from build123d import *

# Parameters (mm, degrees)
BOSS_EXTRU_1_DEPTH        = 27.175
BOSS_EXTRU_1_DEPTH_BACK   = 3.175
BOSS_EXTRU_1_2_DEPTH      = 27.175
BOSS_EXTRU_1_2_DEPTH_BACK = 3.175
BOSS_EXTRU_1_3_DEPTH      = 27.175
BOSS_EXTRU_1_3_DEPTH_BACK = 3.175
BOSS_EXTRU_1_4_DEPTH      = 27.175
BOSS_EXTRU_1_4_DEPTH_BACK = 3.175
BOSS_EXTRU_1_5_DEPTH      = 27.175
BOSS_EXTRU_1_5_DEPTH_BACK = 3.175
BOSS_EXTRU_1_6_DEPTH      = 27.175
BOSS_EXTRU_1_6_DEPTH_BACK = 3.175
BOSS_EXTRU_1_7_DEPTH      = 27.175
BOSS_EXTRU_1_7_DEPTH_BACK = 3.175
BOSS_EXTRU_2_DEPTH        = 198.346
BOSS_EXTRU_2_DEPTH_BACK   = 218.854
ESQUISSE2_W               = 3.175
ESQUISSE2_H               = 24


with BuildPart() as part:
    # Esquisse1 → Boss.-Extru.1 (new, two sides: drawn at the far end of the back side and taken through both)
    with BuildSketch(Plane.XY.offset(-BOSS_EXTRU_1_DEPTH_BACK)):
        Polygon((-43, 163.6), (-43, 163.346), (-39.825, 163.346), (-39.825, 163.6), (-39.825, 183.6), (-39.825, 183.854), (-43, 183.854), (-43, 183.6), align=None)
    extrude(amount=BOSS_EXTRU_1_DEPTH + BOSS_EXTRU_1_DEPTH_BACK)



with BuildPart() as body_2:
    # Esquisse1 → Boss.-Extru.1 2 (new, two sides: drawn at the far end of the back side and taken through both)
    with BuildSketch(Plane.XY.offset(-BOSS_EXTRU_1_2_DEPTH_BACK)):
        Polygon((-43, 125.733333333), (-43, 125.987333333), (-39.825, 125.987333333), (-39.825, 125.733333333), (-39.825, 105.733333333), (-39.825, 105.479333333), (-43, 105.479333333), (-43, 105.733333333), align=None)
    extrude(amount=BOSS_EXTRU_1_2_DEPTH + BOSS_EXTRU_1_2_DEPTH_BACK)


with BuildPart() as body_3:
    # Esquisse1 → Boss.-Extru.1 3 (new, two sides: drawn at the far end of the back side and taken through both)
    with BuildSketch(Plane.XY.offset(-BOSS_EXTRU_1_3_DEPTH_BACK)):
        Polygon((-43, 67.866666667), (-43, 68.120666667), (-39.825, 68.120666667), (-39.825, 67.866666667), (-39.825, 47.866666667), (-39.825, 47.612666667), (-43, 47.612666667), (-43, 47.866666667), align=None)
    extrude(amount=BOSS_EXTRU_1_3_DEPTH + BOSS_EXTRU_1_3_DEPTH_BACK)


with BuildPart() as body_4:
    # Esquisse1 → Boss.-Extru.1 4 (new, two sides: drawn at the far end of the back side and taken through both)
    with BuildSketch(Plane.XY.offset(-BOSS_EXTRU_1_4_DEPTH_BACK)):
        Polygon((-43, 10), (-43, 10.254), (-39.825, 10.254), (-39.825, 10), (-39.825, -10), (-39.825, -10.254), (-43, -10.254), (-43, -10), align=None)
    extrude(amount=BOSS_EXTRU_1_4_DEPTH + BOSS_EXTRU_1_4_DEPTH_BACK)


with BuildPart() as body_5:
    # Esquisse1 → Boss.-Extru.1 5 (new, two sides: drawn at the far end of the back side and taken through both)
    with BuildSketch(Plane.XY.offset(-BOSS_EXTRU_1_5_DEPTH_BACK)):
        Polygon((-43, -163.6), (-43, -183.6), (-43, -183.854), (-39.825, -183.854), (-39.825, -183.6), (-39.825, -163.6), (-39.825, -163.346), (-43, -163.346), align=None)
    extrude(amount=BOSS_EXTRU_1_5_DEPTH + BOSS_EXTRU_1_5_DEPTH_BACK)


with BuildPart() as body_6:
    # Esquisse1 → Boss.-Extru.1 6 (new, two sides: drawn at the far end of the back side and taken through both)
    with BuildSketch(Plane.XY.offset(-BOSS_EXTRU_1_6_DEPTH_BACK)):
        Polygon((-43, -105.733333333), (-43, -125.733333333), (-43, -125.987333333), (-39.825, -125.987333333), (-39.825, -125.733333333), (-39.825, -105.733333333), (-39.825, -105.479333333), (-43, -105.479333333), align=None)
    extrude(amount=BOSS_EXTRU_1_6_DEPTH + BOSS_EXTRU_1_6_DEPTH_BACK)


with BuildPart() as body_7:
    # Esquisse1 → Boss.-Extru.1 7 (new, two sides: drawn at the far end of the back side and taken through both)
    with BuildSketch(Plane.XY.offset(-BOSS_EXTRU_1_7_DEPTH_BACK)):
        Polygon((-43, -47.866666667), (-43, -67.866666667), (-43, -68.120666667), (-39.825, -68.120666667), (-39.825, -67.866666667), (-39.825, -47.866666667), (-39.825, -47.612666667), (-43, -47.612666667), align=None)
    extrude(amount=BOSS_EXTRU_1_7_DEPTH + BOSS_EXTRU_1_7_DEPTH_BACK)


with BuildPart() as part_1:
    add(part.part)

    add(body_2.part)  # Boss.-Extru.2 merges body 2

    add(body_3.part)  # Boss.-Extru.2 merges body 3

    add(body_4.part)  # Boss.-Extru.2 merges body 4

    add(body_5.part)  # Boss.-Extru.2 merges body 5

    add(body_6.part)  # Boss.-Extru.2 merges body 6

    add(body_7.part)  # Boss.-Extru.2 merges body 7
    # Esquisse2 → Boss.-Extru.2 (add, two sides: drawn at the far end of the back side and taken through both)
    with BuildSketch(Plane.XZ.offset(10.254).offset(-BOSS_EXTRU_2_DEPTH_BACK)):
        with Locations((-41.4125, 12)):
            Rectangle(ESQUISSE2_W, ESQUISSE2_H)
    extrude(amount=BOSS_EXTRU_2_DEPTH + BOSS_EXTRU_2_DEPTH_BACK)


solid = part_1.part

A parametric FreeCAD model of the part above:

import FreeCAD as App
import Part
import Sketcher
Q = App.Units.Quantity

doc = App.newDocument("Part")
params = doc.addObject("Spreadsheet::Sheet", "Params")
for row, (alias, value) in enumerate([
    ("pad1_length", "27.175 mm"),
    ("pad1_length2", "3.175 mm"),
    ("pad2_length", "27.175 mm"),
    ("pad2_length2", "3.175 mm"),
    ("pad3_length", "27.175 mm"),
    ("pad3_length2", "3.175 mm"),
    ("pad4_length", "27.175 mm"),
    ("pad4_length2", "3.175 mm"),
    ("pad5_length", "27.175 mm"),
    ("pad5_length2", "3.175 mm"),
    ("pad6_length", "27.175 mm"),
    ("pad6_length2", "3.175 mm"),
    ("pad7_length", "27.175 mm"),
    ("pad7_length2", "3.175 mm"),
    ("sketch8_height", "24 mm"),
    ("pad8_length", "198.346 mm"),
    ("pad8_length2", "218.854 mm"),
], start=1):
    params.set(f"A{row}", alias)
    params.set(f"B{row}", "=" + value)
    params.setAlias(f"B{row}", alias)

body = doc.addObject("PartDesign::Body", "Body")

sketch1 = body.newObject("Sketcher::SketchObject", "Sketch")
sketch1.AttachmentSupport = (doc.getObject("XY_Plane"), [""])
sketch1.MapMode = "FlatFace"
sketch1.addGeometry(Part.LineSegment(App.Vector(-43, 163.3, 0), App.Vector(-39.8, 163.3, 0)), False)
sketch1.addGeometry(Part.LineSegment(App.Vector(-39.8, 163.3, 0), App.Vector(-39.8, 183.9, 0)), False)
sketch1.addGeometry(Part.LineSegment(App.Vector(-39.8, 183.9, 0), App.Vector(-43, 183.9, 0)), False)
sketch1.addGeometry(Part.LineSegment(App.Vector(-43, 183.9, 0), App.Vector(-43, 163.3, 0)), False)
sketch1.addConstraint(Sketcher.Constraint("Coincident", 0, 2, 1, 1))
sketch1.addConstraint(Sketcher.Constraint("Coincident", 1, 2, 2, 1))
sketch1.addConstraint(Sketcher.Constraint("Coincident", 2, 2, 3, 1))
sketch1.addConstraint(Sketcher.Constraint("Coincident", 3, 2, 0, 1))
sketch1.addConstraint(Sketcher.Constraint("Horizontal", 0))
sketch1.addConstraint(Sketcher.Constraint("Vertical", 1))
sketch1.addConstraint(Sketcher.Constraint("Horizontal", 2))
sketch1.addConstraint(Sketcher.Constraint("Vertical", 3))
sketch1.addConstraint(Sketcher.Constraint("DistanceX", 2, 2, -1, 1, Q("43 mm")))
sketch1.addConstraint(Sketcher.Constraint("DistanceX", 0, 1, 0, 2, Q("3.175 mm")))
sketch1.addConstraint(Sketcher.Constraint("DistanceY", 1, 1, 1, 2, Q("20.508 mm")))
sketch1.addConstraint(Sketcher.Constraint("DistanceY", -1, 1, 0, 2, Q("163.346 mm")))
pad1 = body.newObject("PartDesign::Pad", "Pad")
pad1.Profile = sketch1
pad1.Type = "TwoLengths"
pad1.setExpression("Length", "Params.pad1_length")
pad1.setExpression("Length2", "Params.pad1_length2")
body2 = doc.addObject("PartDesign::Body", "Body001")

sketch2 = body2.newObject("Sketcher::SketchObject", "Sketch001")
sketch2.AttachmentSupport = (doc.getObject("XY_Plane001"), [""])
sketch2.MapMode = "FlatFace"
sketch2.addGeometry(Part.LineSegment(App.Vector(-43, 126, 0), App.Vector(-43, 105.5, 0)), False)
sketch2.addGeometry(Part.LineSegment(App.Vector(-43, 105.5, 0), App.Vector(-39.8, 105.5, 0)), False)
sketch2.addGeometry(Part.LineSegment(App.Vector(-39.8, 105.5, 0), App.Vector(-39.8, 126, 0)), False)
sketch2.addGeometry(Part.LineSegment(App.Vector(-39.8, 126, 0), App.Vector(-43, 126, 0)), False)
sketch2.addConstraint(Sketcher.Constraint("Coincident", 0, 2, 1, 1))
sketch2.addConstraint(Sketcher.Constraint("Coincident", 1, 2, 2, 1))
sketch2.addConstraint(Sketcher.Constraint("Coincident", 2, 2, 3, 1))
sketch2.addConstraint(Sketcher.Constraint("Coincident", 3, 2, 0, 1))
sketch2.addConstraint(Sketcher.Constraint("Vertical", 0))
sketch2.addConstraint(Sketcher.Constraint("Horizontal", 1))
sketch2.addConstraint(Sketcher.Constraint("Vertical", 2))
sketch2.addConstraint(Sketcher.Constraint("Horizontal", 3))
sketch2.addConstraint(Sketcher.Constraint("DistanceX", 0, 2, -1, 1, Q("43 mm")))
sketch2.addConstraint(Sketcher.Constraint("DistanceX", 1, 1, 1, 2, Q("3.175 mm")))
sketch2.addConstraint(Sketcher.Constraint("DistanceY", 0, 2, 0, 1, Q("20.508 mm")))
sketch2.addConstraint(Sketcher.Constraint("DistanceY", -1, 1, 0, 2, Q("105.479333 mm")))
pad2 = body2.newObject("PartDesign::Pad", "Pad001")
pad2.Profile = sketch2
pad2.Type = "TwoLengths"
pad2.setExpression("Length", "Params.pad2_length")
pad2.setExpression("Length2", "Params.pad2_length2")
body3 = doc.addObject("PartDesign::Body", "Body002")

sketch3 = body3.newObject("Sketcher::SketchObject", "Sketch002")
sketch3.AttachmentSupport = (doc.getObject("XY_Plane002"), [""])
sketch3.MapMode = "FlatFace"
sketch3.addGeometry(Part.LineSegment(App.Vector(-43, 68.1, 0), App.Vector(-43, 47.6, 0)), False)
sketch3.addGeometry(Part.LineSegment(App.Vector(-43, 47.6, 0), App.Vector(-39.8, 47.6, 0)), False)
sketch3.addGeometry(Part.LineSegment(App.Vector(-39.8, 47.6, 0), App.Vector(-39.8, 68.1, 0)), False)
sketch3.addGeometry(Part.LineSegment(App.Vector(-39.8, 68.1, 0), App.Vector(-43, 68.1, 0)), False)
sketch3.addConstraint(Sketcher.Constraint("Coincident", 0, 2, 1, 1))
sketch3.addConstraint(Sketcher.Constraint("Coincident", 1, 2, 2, 1))
sketch3.addConstraint(Sketcher.Constraint("Coincident", 2, 2, 3, 1))
sketch3.addConstraint(Sketcher.Constraint("Coincident", 3, 2, 0, 1))
sketch3.addConstraint(Sketcher.Constraint("Vertical", 0))
sketch3.addConstraint(Sketcher.Constraint("Horizontal", 1))
sketch3.addConstraint(Sketcher.Constraint("Vertical", 2))
sketch3.addConstraint(Sketcher.Constraint("Horizontal", 3))
sketch3.addConstraint(Sketcher.Constraint("DistanceX", 0, 2, -1, 1, Q("43 mm")))
sketch3.addConstraint(Sketcher.Constraint("DistanceX", 1, 1, 1, 2, Q("3.175 mm")))
sketch3.addConstraint(Sketcher.Constraint("DistanceY", 0, 2, 0, 1, Q("20.508 mm")))
sketch3.addConstraint(Sketcher.Constraint("DistanceY", -1, 1, 0, 2, Q("47.612667 mm")))
pad3 = body3.newObject("PartDesign::Pad", "Pad002")
pad3.Profile = sketch3
pad3.Type = "TwoLengths"
pad3.setExpression("Length", "Params.pad3_length")
pad3.setExpression("Length2", "Params.pad3_length2")
body4 = doc.addObject("PartDesign::Body", "Body003")

sketch4 = body4.newObject("Sketcher::SketchObject", "Sketch003")
sketch4.AttachmentSupport = (doc.getObject("XY_Plane003"), [""])
sketch4.MapMode = "FlatFace"
sketch4.addGeometry(Part.LineSegment(App.Vector(-43, 10.3, 0), App.Vector(-43, -10.3, 0)), False)
sketch4.addGeometry(Part.LineSegment(App.Vector(-43, -10.3, 0), App.Vector(-39.8, -10.3, 0)), False)
sketch4.addGeometry(Part.LineSegment(App.Vector(-39.8, -10.3, 0), App.Vector(-39.8, 10.3, 0)), False)
sketch4.addGeometry(Part.LineSegment(App.Vector(-39.8, 10.3, 0), App.Vector(-43, 10.3, 0)), False)
sketch4.addConstraint(Sketcher.Constraint("Coincident", 0, 2, 1, 1))
sketch4.addConstraint(Sketcher.Constraint("Coincident", 1, 2, 2, 1))
sketch4.addConstraint(Sketcher.Constraint("Coincident", 2, 2, 3, 1))
sketch4.addConstraint(Sketcher.Constraint("Coincident", 3, 2, 0, 1))
sketch4.addConstraint(Sketcher.Constraint("Vertical", 0))
sketch4.addConstraint(Sketcher.Constraint("Horizontal", 1))
sketch4.addConstraint(Sketcher.Constraint("Vertical", 2))
sketch4.addConstraint(Sketcher.Constraint("Horizontal", 3))
sketch4.addConstraint(Sketcher.Constraint("DistanceX", 0, 2, -1, 1, Q("43 mm")))
sketch4.addConstraint(Sketcher.Constraint("DistanceX", 1, 1, 1, 2, Q("3.175 mm")))
sketch4.addConstraint(Sketcher.Constraint("DistanceY", 0, 2, 0, 1, Q("20.508 mm")))
sketch4.addConstraint(Sketcher.Constraint("DistanceY", 0, 2, -1, 1, Q("10.254 mm")))
pad4 = body4.newObject("PartDesign::Pad", "Pad003")
pad4.Profile = sketch4
pad4.Type = "TwoLengths"
pad4.setExpression("Length", "Params.pad4_length")
pad4.setExpression("Length2", "Params.pad4_length2")
body5 = doc.addObject("PartDesign::Body", "Body004")

sketch5 = body5.newObject("Sketcher::SketchObject", "Sketch004")
sketch5.AttachmentSupport = (doc.getObject("XY_Plane004"), [""])
sketch5.MapMode = "FlatFace"
sketch5.addGeometry(Part.LineSegment(App.Vector(-43, -183.9, 0), App.Vector(-39.8, -183.9, 0)), False)
sketch5.addGeometry(Part.LineSegment(App.Vector(-39.8, -183.9, 0), App.Vector(-39.8, -163.3, 0)), False)
sketch5.addGeometry(Part.LineSegment(App.Vector(-39.8, -163.3, 0), App.Vector(-43, -163.3, 0)), False)
sketch5.addGeometry(Part.LineSegment(App.Vector(-43, -163.3, 0), App.Vector(-43, -183.9, 0)), False)
sketch5.addConstraint(Sketcher.Constraint("Coincident", 0, 2, 1, 1))
sketch5.addConstraint(Sketcher.Constraint("Coincident", 1, 2, 2, 1))
sketch5.addConstraint(Sketcher.Constraint("Coincident", 2, 2, 3, 1))
sketch5.addConstraint(Sketcher.Constraint("Coincident", 3, 2, 0, 1))
sketch5.addConstraint(Sketcher.Constraint("Horizontal", 0))
sketch5.addConstraint(Sketcher.Constraint("Vertical", 1))
sketch5.addConstraint(Sketcher.Constraint("Horizontal", 2))
sketch5.addConstraint(Sketcher.Constraint("Vertical", 3))
sketch5.addConstraint(Sketcher.Constraint("DistanceX", 2, 2, -1, 1, Q("43 mm")))
sketch5.addConstraint(Sketcher.Constraint("DistanceX", 0, 1, 0, 2, Q("3.175 mm")))
sketch5.addConstraint(Sketcher.Constraint("DistanceY", 1, 1, 1, 2, Q("20.508 mm")))
sketch5.addConstraint(Sketcher.Constraint("DistanceY", 0, 2, -1, 1, Q("183.854 mm")))
pad5 = body5.newObject("PartDesign::Pad", "Pad004")
pad5.Profile = sketch5
pad5.Type = "TwoLengths"
pad5.setExpression("Length", "Params.pad5_length")
pad5.setExpression("Length2", "Params.pad5_length2")
body6 = doc.addObject("PartDesign::Body", "Body005")

sketch6 = body6.newObject("Sketcher::SketchObject", "Sketch005")
sketch6.AttachmentSupport = (doc.getObject("XY_Plane005"), [""])
sketch6.MapMode = "FlatFace"
sketch6.addGeometry(Part.LineSegment(App.Vector(-43, -126, 0), App.Vector(-39.8, -126, 0)), False)
sketch6.addGeometry(Part.LineSegment(App.Vector(-39.8, -126, 0), App.Vector(-39.8, -105.5, 0)), False)
sketch6.addGeometry(Part.LineSegment(App.Vector(-39.8, -105.5, 0), App.Vector(-43, -105.5, 0)), False)
sketch6.addGeometry(Part.LineSegment(App.Vector(-43, -105.5, 0), App.Vector(-43, -126, 0)), False)
sketch6.addConstraint(Sketcher.Constraint("Coincident", 0, 2, 1, 1))
sketch6.addConstraint(Sketcher.Constraint("Coincident", 1, 2, 2, 1))
sketch6.addConstraint(Sketcher.Constraint("Coincident", 2, 2, 3, 1))
sketch6.addConstraint(Sketcher.Constraint("Coincident", 3, 2, 0, 1))
sketch6.addConstraint(Sketcher.Constraint("Horizontal", 0))
sketch6.addConstraint(Sketcher.Constraint("Vertical", 1))
sketch6.addConstraint(Sketcher.Constraint("Horizontal", 2))
sketch6.addConstraint(Sketcher.Constraint("Vertical", 3))
sketch6.addConstraint(Sketcher.Constraint("DistanceX", 2, 2, -1, 1, Q("43 mm")))
sketch6.addConstraint(Sketcher.Constraint("DistanceX", 0, 1, 0, 2, Q("3.175 mm")))
sketch6.addConstraint(Sketcher.Constraint("DistanceY", 1, 1, 1, 2, Q("20.508 mm")))
sketch6.addConstraint(Sketcher.Constraint("DistanceY", 0, 2, -1, 1, Q("125.987333 mm")))
pad6 = body6.newObject("PartDesign::Pad", "Pad005")
pad6.Profile = sketch6
pad6.Type = "TwoLengths"
pad6.setExpression("Length", "Params.pad6_length")
pad6.setExpression("Length2", "Params.pad6_length2")
body7 = doc.addObject("PartDesign::Body", "Body006")

sketch7 = body7.newObject("Sketcher::SketchObject", "Sketch006")
sketch7.AttachmentSupport = (doc.getObject("XY_Plane006"), [""])
sketch7.MapMode = "FlatFace"
sketch7.addGeometry(Part.LineSegment(App.Vector(-43, -68.1, 0), App.Vector(-39.8, -68.1, 0)), False)
sketch7.addGeometry(Part.LineSegment(App.Vector(-39.8, -68.1, 0), App.Vector(-39.8, -47.6, 0)), False)
sketch7.addGeometry(Part.LineSegment(App.Vector(-39.8, -47.6, 0), App.Vector(-43, -47.6, 0)), False)
sketch7.addGeometry(Part.LineSegment(App.Vector(-43, -47.6, 0), App.Vector(-43, -68.1, 0)), False)
sketch7.addConstraint(Sketcher.Constraint("Coincident", 0, 2, 1, 1))
sketch7.addConstraint(Sketcher.Constraint("Coincident", 1, 2, 2, 1))
sketch7.addConstraint(Sketcher.Constraint("Coincident", 2, 2, 3, 1))
sketch7.addConstraint(Sketcher.Constraint("Coincident", 3, 2, 0, 1))
sketch7.addConstraint(Sketcher.Constraint("Horizontal", 0))
sketch7.addConstraint(Sketcher.Constraint("Vertical", 1))
sketch7.addConstraint(Sketcher.Constraint("Horizontal", 2))
sketch7.addConstraint(Sketcher.Constraint("Vertical", 3))
sketch7.addConstraint(Sketcher.Constraint("DistanceX", 2, 2, -1, 1, Q("43 mm")))
sketch7.addConstraint(Sketcher.Constraint("DistanceX", 0, 1, 0, 2, Q("3.175 mm")))
sketch7.addConstraint(Sketcher.Constraint("DistanceY", 1, 1, 1, 2, Q("20.508 mm")))
sketch7.addConstraint(Sketcher.Constraint("DistanceY", 0, 2, -1, 1, Q("68.120667 mm")))
pad7 = body7.newObject("PartDesign::Pad", "Pad006")
pad7.Profile = sketch7
pad7.Type = "TwoLengths"
pad7.setExpression("Length", "Params.pad7_length")
pad7.setExpression("Length2", "Params.pad7_length2")
body.AllowCompound = True
doc.recompute()

boolean = body.newObject("PartDesign::Boolean", "Boolean")
boolean.Type = "Fuse"
boolean.addObjects([body2])
doc.recompute()

boolean2 = body.newObject("PartDesign::Boolean", "Boolean001")
boolean2.Type = "Fuse"
boolean2.addObjects([body3])
doc.recompute()

boolean3 = body.newObject("PartDesign::Boolean", "Boolean002")
boolean3.Type = "Fuse"
boolean3.addObjects([body4])
doc.recompute()

boolean4 = body.newObject("PartDesign::Boolean", "Boolean003")
boolean4.Type = "Fuse"
boolean4.addObjects([body5])
doc.recompute()

boolean5 = body.newObject("PartDesign::Boolean", "Boolean004")
boolean5.Type = "Fuse"
boolean5.addObjects([body6])
doc.recompute()

boolean6 = body.newObject("PartDesign::Boolean", "Boolean005")
boolean6.Type = "Fuse"
boolean6.addObjects([body7])

sketch8 = body.newObject("Sketcher::SketchObject", "Sketch007")
sketch8.AttachmentSupport = (doc.getObject("XZ_Plane"), [""])
sketch8.MapMode = "FlatFace"
sketch8.AttachmentOffset = App.Placement(App.Vector(0, 0, 10.254), App.Rotation())
sketch8.addGeometry(Part.LineSegment(App.Vector(-43, 24, 0), App.Vector(-43, 0, 0)), False)
sketch8.addGeometry(Part.LineSegment(App.Vector(-43, 0, 0), App.Vector(-39.8, 0, 0)), False)
sketch8.addGeometry(Part.LineSegment(App.Vector(-39.8, 0, 0), App.Vector(-39.8, 24, 0)), False)
sketch8.addGeometry(Part.LineSegment(App.Vector(-39.8, 24, 0), App.Vector(-43, 24, 0)), False)
sketch8.addConstraint(Sketcher.Constraint("Coincident", 0, 2, 1, 1))
sketch8.addConstraint(Sketcher.Constraint("Coincident", 1, 2, 2, 1))
sketch8.addConstraint(Sketcher.Constraint("Coincident", 2, 2, 3, 1))
sketch8.addConstraint(Sketcher.Constraint("Coincident", 3, 2, 0, 1))
sketch8.addConstraint(Sketcher.Constraint("Vertical", 0))
sketch8.addConstraint(Sketcher.Constraint("Horizontal", 1))
sketch8.addConstraint(Sketcher.Constraint("Vertical", 2))
sketch8.addConstraint(Sketcher.Constraint("Horizontal", 3))
sketch8.addConstraint(Sketcher.Constraint("PointOnObject", 0, 2, -1))
sketch8.addConstraint(Sketcher.Constraint("DistanceY", 0, 2, 0, 1, Q("24 mm")))
sketch8.addConstraint(Sketcher.Constraint("DistanceX", 0, 2, -1, 1, Q("43 mm")))
sketch8.addConstraint(Sketcher.Constraint("DistanceX", 1, 1, 1, 2, Q("3.175 mm")))
sketch8.setExpression("Constraints[9]", "Params.sketch8_height")
pad8 = body.newObject("PartDesign::Pad", "Pad007")
pad8.Profile = sketch8
pad8.Type = "TwoLengths"
pad8.setExpression("Length", "Params.pad8_length")
pad8.setExpression("Length2", "Params.pad8_length2")

doc.recompute()
